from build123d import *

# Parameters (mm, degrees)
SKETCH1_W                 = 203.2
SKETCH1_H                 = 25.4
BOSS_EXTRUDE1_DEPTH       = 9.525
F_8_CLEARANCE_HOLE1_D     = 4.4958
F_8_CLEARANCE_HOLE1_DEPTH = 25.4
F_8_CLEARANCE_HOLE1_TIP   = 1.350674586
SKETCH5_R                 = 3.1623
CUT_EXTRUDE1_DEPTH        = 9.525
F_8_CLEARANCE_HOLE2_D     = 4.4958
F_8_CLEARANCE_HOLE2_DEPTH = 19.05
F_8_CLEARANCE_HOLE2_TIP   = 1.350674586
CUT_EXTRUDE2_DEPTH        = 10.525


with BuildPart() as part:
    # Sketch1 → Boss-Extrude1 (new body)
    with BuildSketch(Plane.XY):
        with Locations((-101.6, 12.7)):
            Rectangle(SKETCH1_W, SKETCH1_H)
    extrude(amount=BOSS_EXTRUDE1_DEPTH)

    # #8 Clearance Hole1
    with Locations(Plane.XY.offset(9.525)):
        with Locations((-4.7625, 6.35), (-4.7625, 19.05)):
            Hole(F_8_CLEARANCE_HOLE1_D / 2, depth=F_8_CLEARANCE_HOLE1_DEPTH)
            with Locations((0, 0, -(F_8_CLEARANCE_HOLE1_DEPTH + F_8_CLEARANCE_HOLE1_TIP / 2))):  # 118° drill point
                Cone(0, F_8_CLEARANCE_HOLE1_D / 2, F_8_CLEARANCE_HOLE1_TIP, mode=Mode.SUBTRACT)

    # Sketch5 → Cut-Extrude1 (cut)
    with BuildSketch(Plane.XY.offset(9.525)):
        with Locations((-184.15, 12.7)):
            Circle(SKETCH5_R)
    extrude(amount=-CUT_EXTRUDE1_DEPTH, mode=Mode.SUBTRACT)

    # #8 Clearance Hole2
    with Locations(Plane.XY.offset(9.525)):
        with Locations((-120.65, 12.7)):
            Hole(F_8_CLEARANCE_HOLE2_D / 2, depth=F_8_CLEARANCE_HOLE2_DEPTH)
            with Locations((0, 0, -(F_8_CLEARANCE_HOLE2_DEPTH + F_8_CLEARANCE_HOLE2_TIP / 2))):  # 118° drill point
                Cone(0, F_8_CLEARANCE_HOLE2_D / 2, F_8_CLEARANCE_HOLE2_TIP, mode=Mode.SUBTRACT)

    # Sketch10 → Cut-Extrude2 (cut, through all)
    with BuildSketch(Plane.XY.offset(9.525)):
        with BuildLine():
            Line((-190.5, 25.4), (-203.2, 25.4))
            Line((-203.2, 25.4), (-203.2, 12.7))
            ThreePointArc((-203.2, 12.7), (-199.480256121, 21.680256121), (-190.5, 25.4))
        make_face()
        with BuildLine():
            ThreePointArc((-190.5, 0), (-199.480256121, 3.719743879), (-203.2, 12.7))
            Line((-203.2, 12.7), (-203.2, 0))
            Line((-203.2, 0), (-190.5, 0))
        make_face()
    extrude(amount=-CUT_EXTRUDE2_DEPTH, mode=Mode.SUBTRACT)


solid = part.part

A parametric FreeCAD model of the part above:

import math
import FreeCAD as App
import Part
import Sketcher
from FreeCAD import Vector
Q = App.Units.Quantity

doc = App.newDocument("Part")
params = doc.addObject("Spreadsheet::Sheet", "Params")
for row, (alias, value) in enumerate([
    ("sketch1_width", "8 in"),
    ("sketch1_height", "1 in"),
    ("pad1_length", "0.375 in"),
    ("sketch2_diameter", "0.177 in"),
    ("hole_diameter", "0.177 in"),
    ("hole_depth", "1 in"),
    ("sketch3_diameter", "0.249 in"),
    ("pocket1_length", "0.375 in"),
    ("sketch4_diameter", "0.177 in"),
    ("hole2_diameter", "0.177 in"),
    ("hole2_depth", "0.75 in"),
    ("sketch5_radius", "0.5 in"),
], start=1):
    params.set(f"A{row}", alias)
    params.set(f"B{row}", "=" + value)
    params.setAlias(f"B{row}", alias)

body = doc.addObject("PartDesign::Body", "Body")

sketch1 = body.newObject("Sketcher::SketchObject", "Sketch")
sketch1.AttachmentSupport = (doc.getObject("XY_Plane"), [""])
sketch1.MapMode = "FlatFace"
sketch1.addGeometry(Part.LineSegment(Vector(-203, 25, 0), Vector(-203, 0, 0)), False)
sketch1.addGeometry(Part.LineSegment(Vector(-203, 0, 0), Vector(0, 0, 0)), False)
sketch1.addGeometry(Part.LineSegment(Vector(0, 0, 0), Vector(0, 25, 0)), False)
sketch1.addGeometry(Part.LineSegment(Vector(0, 25, 0), Vector(-203, 25, 0)), False)
sketch1.addConstraint(Sketcher.Constraint("Coincident", 0, 2, 1, 1))
sketch1.addConstraint(Sketcher.Constraint("Coincident", 1, 2, 2, 1))
sketch1.addConstraint(Sketcher.Constraint("Coincident", 2, 2, 3, 1))
sketch1.addConstraint(Sketcher.Constraint("Coincident", 3, 2, 0, 1))
sketch1.addConstraint(Sketcher.Constraint("Vertical", 0))
sketch1.addConstraint(Sketcher.Constraint("Horizontal", 1))
sketch1.addConstraint(Sketcher.Constraint("Vertical", 2))
sketch1.addConstraint(Sketcher.Constraint("Horizontal", 3))
sketch1.addConstraint(Sketcher.Constraint("Coincident", 1, 2, -1, 1))
sketch1.addConstraint(Sketcher.Constraint("DistanceX", 1, 1, 1, 2, Q("8 in")))
sketch1.addConstraint(Sketcher.Constraint("DistanceY", 0, 2, 0, 1, Q("1 in")))
sketch1.setExpression("Constraints[9]", "Params.sketch1_width")
sketch1.setExpression("Constraints[10]", "Params.sketch1_height")
pad1 = body.newObject("PartDesign::Pad", "Pad")
pad1.Profile = sketch1
pad1.setExpression("Length", "Params.pad1_length")

sketch2 = body.newObject("Sketcher::SketchObject", "Sketch001")
sketch2.AttachmentSupport = (doc.getObject("XY_Plane"), [""])
sketch2.MapMode = "FlatFace"
sketch2.AttachmentOffset = App.Placement(Vector(0, 0, 0.375 * 25.4), App.Rotation())
sketch2.addGeometry(Part.Circle(Vector(-4.8, 6.3, 0), Vector(0, 0, 1), 2.2), False)
sketch2.addGeometry(Part.Circle(Vector(-4.8, 19.1, 0), Vector(0, 0, 1), 2.2), False)
sketch2.addConstraint(Sketcher.Constraint("Equal", 0, 1))
sketch2.addConstraint(Sketcher.Constraint("Vertical", 0, 3, 1, 3))
sketch2.addConstraint(Sketcher.Constraint("Diameter", 0, Q("0.177 in")))
sketch2.addConstraint(Sketcher.Constraint("DistanceY", 0, 3, 1, 3, Q("0.5 in")))
sketch2.addConstraint(Sketcher.Constraint("DistanceY", -1, 1, 0, 3, Q("0.25 in")))
sketch2.addConstraint(Sketcher.Constraint("DistanceX", 0, 3, -1, 1, Q("0.1875 in")))
sketch2.setExpression("Constraints[2]", "Params.sketch2_diameter")
doc.recompute()
hole = body.newObject("PartDesign::Hole", "Hole")
hole.Profile = sketch2
hole.ThreadType = "None"
hole.setExpression("Diameter", "Params.hole_diameter")
hole.DepthType = "Dimension"
hole.setExpression("Depth", "Params.hole_depth")
hole.DrillPoint = "Angled"
hole.DrillPointAngle = 118

sketch3 = body.newObject("Sketcher::SketchObject", "Sketch002")
sketch3.AttachmentSupport = (doc.getObject("XY_Plane"), [""])
sketch3.MapMode = "FlatFace"
sketch3.AttachmentOffset = App.Placement(Vector(0, 0, 0.375 * 25.4), App.Rotation())
sketch3.addGeometry(Part.Circle(Vector(-184.2, 12.7, 0), Vector(0, 0, 1), 3.2), False)
sketch3.addConstraint(Sketcher.Constraint("Diameter", 0, Q("0.249 in")))
sketch3.addConstraint(Sketcher.Constraint("DistanceY", -1, 1, 0, 3, Q("0.5 in")))
sketch3.addConstraint(Sketcher.Constraint("DistanceX", 0, 3, -1, 1, Q("7.25 in")))
sketch3.setExpression("Constraints[0]", "Params.sketch3_diameter")
pocket1 = body.newObject("PartDesign::Pocket", "Pocket")
pocket1.Profile = sketch3
pocket1.setExpression("Length", "Params.pocket1_length")

sketch4 = body.newObject("Sketcher::SketchObject", "Sketch003")
sketch4.AttachmentSupport = (doc.getObject("XY_Plane"), [""])
sketch4.MapMode = "FlatFace"
sketch4.AttachmentOffset = App.Placement(Vector(0, 0, 0.375 * 25.4), App.Rotation())
sketch4.addGeometry(Part.Circle(Vector(-120.7, 12.7, 0), Vector(0, 0, 1), 2.2), False)
sketch4.addConstraint(Sketcher.Constraint("Diameter", 0, Q("0.177 in")))
sketch4.addConstraint(Sketcher.Constraint("DistanceY", -1, 1, 0, 3, Q("0.5 in")))
sketch4.addConstraint(Sketcher.Constraint("DistanceX", 0, 3, -1, 1, Q("4.75 in")))
sketch4.setExpression("Constraints[0]", "Params.sketch4_diameter")
doc.recompute()
hole2 = body.newObject("PartDesign::Hole", "Hole001")
hole2.Profile = sketch4
hole2.ThreadType = "None"
hole2.setExpression("Diameter", "Params.hole2_diameter")
hole2.DepthType = "Dimension"
hole2.setExpression("Depth", "Params.hole2_depth")
hole2.DrillPoint = "Angled"
hole2.DrillPointAngle = 118

sketch5 = body.newObject("Sketcher::SketchObject", "Sketch004")
sketch5.AttachmentSupport = (doc.getObject("XY_Plane"), [""])
sketch5.MapMode = "FlatFace"
sketch5.AttachmentOffset = App.Placement(Vector(0, 0, 0.375 * 25.4), App.Rotation())
sketch5.addGeometry(Part.LineSegment(Vector(-190, 25, 0), Vector(-203, 25, 0)), False)
sketch5.addGeometry(Part.LineSegment(Vector(-203, 25, 0), Vector(-203, 13, 0)), False)
sketch5.addGeometry(Part.ArcOfCircle(Part.Circle(Vector(-190, 13, 0), Vector(0, 0, 1), 13), math.radians(90), math.radians(180)), False)
sketch5.addGeometry(Part.ArcOfCircle(Part.Circle(Vector(-190, 13, 0), Vector(0, 0, 1), 13), math.radians(180), math.radians(270)), False)
sketch5.addGeometry(Part.LineSegment(Vector(-203, 13, 0), Vector(-203, 0, 0)), False)
sketch5.addGeometry(Part.LineSegment(Vector(-203, 0, 0), Vector(-190, 0, 0)), False)
sketch5.addConstraint(Sketcher.Constraint("Coincident", 0, 2, 1, 1))
sketch5.addConstraint(Sketcher.Constraint("Tangent", 1, 2, 2, 2))
sketch5.addConstraint(Sketcher.Constraint("Tangent", 2, 1, 0, 1))
sketch5.addConstraint(Sketcher.Constraint("Tangent", 3, 1, 4, 1))
sketch5.addConstraint(Sketcher.Constraint("Coincident", 4, 2, 5, 1))
sketch5.addConstraint(Sketcher.Constraint("Tangent", 5, 2, 3, 2))
sketch5.addConstraint(Sketcher.Constraint("Horizontal", 0))
sketch5.addConstraint(Sketcher.Constraint("Vertical", 1))
sketch5.addConstraint(Sketcher.Constraint("Vertical", 4))
sketch5.addConstraint(Sketcher.Constraint("Horizontal", 5))
sketch5.addConstraint(Sketcher.Constraint("Coincident", 3, 3, 2, 3))
sketch5.addConstraint(Sketcher.Constraint("Equal", 2, 3))
sketch5.addConstraint(Sketcher.Constraint("PointOnObject", 4, 2, -1))
sketch5.addConstraint(Sketcher.Constraint("Radius", 2, Q("0.5 in")))
sketch5.addConstraint(Sketcher.Constraint("DistanceX", 0, 2, -1, 1, Q("8 in")))
sketch5.setExpression("Constraints[13]", "Params.sketch5_radius")
pocket2 = body.newObject("PartDesign::Pocket", "Pocket001")
pocket2.Profile = sketch5
pocket2.Type = "ThroughAll"

doc.recompute()
